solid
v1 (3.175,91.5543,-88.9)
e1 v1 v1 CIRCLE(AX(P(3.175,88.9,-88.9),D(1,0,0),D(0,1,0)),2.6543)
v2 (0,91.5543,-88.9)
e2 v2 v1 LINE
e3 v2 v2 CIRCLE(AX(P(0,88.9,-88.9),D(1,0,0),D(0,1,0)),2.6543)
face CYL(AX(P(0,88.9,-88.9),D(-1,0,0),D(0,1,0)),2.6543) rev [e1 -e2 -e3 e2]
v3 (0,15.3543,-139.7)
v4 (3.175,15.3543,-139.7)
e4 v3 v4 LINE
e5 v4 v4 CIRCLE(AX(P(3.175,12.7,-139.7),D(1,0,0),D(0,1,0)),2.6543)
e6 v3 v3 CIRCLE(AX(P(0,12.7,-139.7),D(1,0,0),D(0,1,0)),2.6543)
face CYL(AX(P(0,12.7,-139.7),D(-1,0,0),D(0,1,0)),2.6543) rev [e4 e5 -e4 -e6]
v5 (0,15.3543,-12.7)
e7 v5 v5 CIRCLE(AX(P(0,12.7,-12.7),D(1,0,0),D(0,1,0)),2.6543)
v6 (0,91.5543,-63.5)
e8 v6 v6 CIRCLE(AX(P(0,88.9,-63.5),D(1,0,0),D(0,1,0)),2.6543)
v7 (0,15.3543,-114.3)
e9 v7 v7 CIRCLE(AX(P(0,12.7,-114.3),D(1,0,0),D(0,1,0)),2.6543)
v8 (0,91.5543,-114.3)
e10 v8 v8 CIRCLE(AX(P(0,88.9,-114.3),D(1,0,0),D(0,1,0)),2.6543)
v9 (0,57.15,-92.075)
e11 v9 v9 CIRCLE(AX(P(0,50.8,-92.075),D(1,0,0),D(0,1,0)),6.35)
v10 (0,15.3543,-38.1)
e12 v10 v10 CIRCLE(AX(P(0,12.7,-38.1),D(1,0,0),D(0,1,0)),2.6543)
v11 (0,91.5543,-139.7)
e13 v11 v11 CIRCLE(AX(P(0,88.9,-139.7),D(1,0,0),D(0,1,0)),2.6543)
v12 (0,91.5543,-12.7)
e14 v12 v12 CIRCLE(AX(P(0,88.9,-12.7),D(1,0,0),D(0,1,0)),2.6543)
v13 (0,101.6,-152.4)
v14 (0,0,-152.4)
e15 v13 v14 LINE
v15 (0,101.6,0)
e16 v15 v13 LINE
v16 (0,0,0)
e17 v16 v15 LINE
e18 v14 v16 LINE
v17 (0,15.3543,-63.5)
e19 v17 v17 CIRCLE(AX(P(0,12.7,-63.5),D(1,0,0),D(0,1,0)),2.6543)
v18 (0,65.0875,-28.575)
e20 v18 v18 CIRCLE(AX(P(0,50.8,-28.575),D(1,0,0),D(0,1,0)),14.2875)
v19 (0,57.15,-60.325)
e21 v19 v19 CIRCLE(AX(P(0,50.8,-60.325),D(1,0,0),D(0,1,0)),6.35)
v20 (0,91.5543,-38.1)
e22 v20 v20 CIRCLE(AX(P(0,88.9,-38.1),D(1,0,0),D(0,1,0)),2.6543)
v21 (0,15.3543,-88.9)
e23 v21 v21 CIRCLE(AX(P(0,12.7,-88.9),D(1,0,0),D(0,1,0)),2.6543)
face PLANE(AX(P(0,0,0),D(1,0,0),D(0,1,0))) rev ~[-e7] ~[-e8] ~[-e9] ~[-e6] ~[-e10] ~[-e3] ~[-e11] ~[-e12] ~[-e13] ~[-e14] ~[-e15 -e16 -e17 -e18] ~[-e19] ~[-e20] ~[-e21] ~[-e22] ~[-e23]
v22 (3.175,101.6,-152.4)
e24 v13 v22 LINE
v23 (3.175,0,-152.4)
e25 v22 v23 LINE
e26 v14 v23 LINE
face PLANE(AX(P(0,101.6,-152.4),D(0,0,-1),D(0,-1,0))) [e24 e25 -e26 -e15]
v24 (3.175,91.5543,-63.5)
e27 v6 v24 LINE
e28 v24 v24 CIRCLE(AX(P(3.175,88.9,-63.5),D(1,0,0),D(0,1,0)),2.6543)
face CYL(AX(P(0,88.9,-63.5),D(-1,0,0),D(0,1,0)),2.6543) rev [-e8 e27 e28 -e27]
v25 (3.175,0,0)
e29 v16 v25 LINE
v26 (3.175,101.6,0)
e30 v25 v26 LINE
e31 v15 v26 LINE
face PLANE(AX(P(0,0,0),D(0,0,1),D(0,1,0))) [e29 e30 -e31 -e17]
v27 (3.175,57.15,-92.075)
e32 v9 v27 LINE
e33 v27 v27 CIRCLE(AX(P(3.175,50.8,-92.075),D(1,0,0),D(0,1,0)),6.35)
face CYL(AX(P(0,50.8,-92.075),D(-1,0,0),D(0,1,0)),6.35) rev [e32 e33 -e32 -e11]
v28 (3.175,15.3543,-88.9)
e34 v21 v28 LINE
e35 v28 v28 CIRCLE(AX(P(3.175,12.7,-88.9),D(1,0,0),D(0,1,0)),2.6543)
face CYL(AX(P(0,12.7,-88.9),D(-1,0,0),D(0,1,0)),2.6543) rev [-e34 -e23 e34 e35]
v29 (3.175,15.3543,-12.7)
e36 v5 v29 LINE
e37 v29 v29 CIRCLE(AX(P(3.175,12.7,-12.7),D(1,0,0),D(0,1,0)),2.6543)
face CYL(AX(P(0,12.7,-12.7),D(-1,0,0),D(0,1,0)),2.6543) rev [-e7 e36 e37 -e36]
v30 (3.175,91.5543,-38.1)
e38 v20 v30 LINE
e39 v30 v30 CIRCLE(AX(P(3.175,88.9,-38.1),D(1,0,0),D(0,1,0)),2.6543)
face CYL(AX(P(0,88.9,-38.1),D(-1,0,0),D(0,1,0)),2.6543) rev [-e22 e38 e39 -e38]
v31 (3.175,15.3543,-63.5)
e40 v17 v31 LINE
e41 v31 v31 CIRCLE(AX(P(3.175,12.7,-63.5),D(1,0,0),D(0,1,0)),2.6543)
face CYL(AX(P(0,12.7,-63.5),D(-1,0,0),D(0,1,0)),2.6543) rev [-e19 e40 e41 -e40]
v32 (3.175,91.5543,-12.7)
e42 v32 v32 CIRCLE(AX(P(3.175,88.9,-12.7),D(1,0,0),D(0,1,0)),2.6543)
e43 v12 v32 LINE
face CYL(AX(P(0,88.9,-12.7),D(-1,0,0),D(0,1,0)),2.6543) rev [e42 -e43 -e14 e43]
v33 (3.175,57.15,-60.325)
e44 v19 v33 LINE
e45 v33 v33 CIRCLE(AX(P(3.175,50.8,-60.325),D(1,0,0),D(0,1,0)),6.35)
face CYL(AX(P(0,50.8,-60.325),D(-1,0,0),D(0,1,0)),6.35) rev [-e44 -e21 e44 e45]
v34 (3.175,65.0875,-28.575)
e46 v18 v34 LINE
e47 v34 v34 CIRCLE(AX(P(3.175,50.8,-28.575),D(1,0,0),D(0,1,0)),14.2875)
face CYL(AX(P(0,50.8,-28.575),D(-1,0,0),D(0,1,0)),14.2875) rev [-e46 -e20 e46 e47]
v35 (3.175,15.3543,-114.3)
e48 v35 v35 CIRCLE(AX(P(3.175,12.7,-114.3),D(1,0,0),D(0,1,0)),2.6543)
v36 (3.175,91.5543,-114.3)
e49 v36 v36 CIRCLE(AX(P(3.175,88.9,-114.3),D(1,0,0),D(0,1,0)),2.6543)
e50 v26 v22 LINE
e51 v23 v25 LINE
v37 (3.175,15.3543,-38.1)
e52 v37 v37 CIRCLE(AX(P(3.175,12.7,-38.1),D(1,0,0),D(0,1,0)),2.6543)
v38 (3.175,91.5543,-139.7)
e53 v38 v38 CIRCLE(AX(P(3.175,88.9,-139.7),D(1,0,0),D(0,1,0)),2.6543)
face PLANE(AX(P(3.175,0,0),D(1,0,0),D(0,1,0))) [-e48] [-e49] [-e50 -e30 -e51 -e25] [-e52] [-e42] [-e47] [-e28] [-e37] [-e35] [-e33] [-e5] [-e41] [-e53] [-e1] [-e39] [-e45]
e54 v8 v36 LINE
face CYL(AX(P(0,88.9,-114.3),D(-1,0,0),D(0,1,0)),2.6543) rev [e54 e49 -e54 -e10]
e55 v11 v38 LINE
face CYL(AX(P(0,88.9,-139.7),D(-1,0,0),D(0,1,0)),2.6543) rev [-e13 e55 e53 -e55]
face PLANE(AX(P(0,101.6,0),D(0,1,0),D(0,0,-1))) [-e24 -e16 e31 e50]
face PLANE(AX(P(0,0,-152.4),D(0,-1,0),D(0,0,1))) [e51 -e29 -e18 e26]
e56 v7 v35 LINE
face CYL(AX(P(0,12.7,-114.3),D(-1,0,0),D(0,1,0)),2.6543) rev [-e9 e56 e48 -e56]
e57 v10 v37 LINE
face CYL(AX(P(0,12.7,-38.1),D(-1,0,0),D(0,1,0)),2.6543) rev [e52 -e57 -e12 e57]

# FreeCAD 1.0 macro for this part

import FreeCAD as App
import Part
import Sketcher
Q = App.Units.Quantity


def add_polygon(sketch, points):
    """Adds a closed chain of lines whose ends are joined by coincident constraints."""
    first, n = sketch.GeometryCount, len(points)
    for a, b in zip(points, points[1:] + points[:1]):
        sketch.addGeometry(Part.LineSegment(App.Vector(*a, 0), App.Vector(*b, 0)), False)
    for i in range(n):
        sketch.addConstraint(Sketcher.Constraint("Coincident", first + i, 2, first + (i + 1) % n, 1))

doc = App.newDocument("Part")
body = doc.addObject("PartDesign::Body", "Body")

sketch1 = body.newObject("Sketcher::SketchObject", "Sketch")
sketch1.AttachmentSupport = (doc.getObject("YZ_Plane"), [""])
sketch1.MapMode = "FlatFace"
add_polygon(sketch1, [(101.6, 0), (0, 0), (0, -152.4), (101.6, -152.4)])
sketch1.addGeometry(Part.Circle(App.Vector(12.7, -139.7, 0), App.Vector(0, 0, 1), 2.6543), False)
sketch1.addGeometry(Part.Circle(App.Vector(12.7, -114.3, 0), App.Vector(0, 0, 1), 2.6543), False)
sketch1.addGeometry(Part.Circle(App.Vector(12.7, -88.9, 0), App.Vector(0, 0, 1), 2.6543), False)
sketch1.addGeometry(Part.Circle(App.Vector(50.8, -92.075, 0), App.Vector(0, 0, 1), 6.35), False)
sketch1.addGeometry(Part.Circle(App.Vector(88.9, -139.7, 0), App.Vector(0, 0, 1), 2.6543), False)
sketch1.addGeometry(Part.Circle(App.Vector(88.9, -114.3, 0), App.Vector(0, 0, 1), 2.6543), False)
sketch1.addGeometry(Part.Circle(App.Vector(88.9, -88.9, 0), App.Vector(0, 0, 1), 2.6543), False)
sketch1.addGeometry(Part.Circle(App.Vector(12.7, -63.5, 0), App.Vector(0, 0, 1), 2.6543), False)
sketch1.addGeometry(Part.Circle(App.Vector(50.8, -60.325, 0), App.Vector(0, 0, 1), 6.35), False)
sketch1.addGeometry(Part.Circle(App.Vector(12.7, -38.1, 0), App.Vector(0, 0, 1), 2.6543), False)
sketch1.addGeometry(Part.Circle(App.Vector(12.7, -12.7, 0), App.Vector(0, 0, 1), 2.6543), False)
sketch1.addGeometry(Part.Circle(App.Vector(50.8, -28.575, 0), App.Vector(0, 0, 1), 14.2875), False)
sketch1.addGeometry(Part.Circle(App.Vector(88.9, -63.5, 0), App.Vector(0, 0, 1), 2.6543), False)
sketch1.addGeometry(Part.Circle(App.Vector(88.9, -38.1, 0), App.Vector(0, 0, 1), 2.6543), False)
sketch1.addGeometry(Part.Circle(App.Vector(88.9, -12.7, 0), App.Vector(0, 0, 1), 2.6543), False)
sketch1.addConstraint([
    Sketcher.Constraint("Horizontal", 0),
    Sketcher.Constraint("Vertical", 1),
    Sketcher.Constraint("Horizontal", 2),
    Sketcher.Constraint("Vertical", 3),
    Sketcher.Constraint("Coincident", 0, 2, -1, 1),
    Sketcher.Constraint("Equal", 4, 5),
    Sketcher.Constraint("Equal", 5, 6),
    Sketcher.Constraint("Equal", 6, 8),
    Sketcher.Constraint("Equal", 8, 9),
    Sketcher.Constraint("Equal", 9, 10),
    Sketcher.Constraint("Equal", 10, 11),
    Sketcher.Constraint("Equal", 7, 12),
    Sketcher.Constraint("Equal", 11, 13),
    Sketcher.Constraint("Equal", 13, 14),
    Sketcher.Constraint("Equal", 14, 16),
    Sketcher.Constraint("Equal", 16, 17),
    Sketcher.Constraint("Equal", 17, 18),
    Sketcher.Constraint("Horizontal", 4, 3, 8, 3),
    Sketcher.Constraint("Horizontal", 5, 3, 9, 3),
    Sketcher.Constraint("Horizontal", 6, 3, 10, 3),
    Sketcher.Constraint("Horizontal", 11, 3, 16, 3),
    Sketcher.Constraint("Horizontal", 13, 3, 17, 3),
    Sketcher.Constraint("Horizontal", 14, 3, 18, 3),
    Sketcher.Constraint("Vertical", 4, 3, 5, 3),
    Sketcher.Constraint("Vertical", 5, 3, 6, 3),
    Sketcher.Constraint("Vertical", 8, 3, 9, 3),
    Sketcher.Constraint("Vertical", 9, 3, 10, 3),
    Sketcher.Constraint("Vertical", 6, 3, 11, 3),
    Sketcher.Constraint("Vertical", 7, 3, 12, 3),
    Sketcher.Constraint("Vertical", 11, 3, 13, 3),
    Sketcher.Constraint("Vertical", 13, 3, 14, 3),
    Sketcher.Constraint("Vertical", 12, 3, 15, 3),
    Sketcher.Constraint("Vertical", 10, 3, 16, 3),
    Sketcher.Constraint("Vertical", 16, 3, 17, 3),
    Sketcher.Constraint("Vertical", 17, 3, 18, 3),
    Sketcher.Constraint("Diameter", 7, Q("0.5 in")),
    Sketcher.Constraint("DistanceX", 0, 2, 0, 1, Q("4 in")),
    Sketcher.Constraint("DistanceY", 1, 2, 1, 1, Q("6 in")),
    Sketcher.Constraint("Diameter", 4, Q("0.209 in")),
    Sketcher.Constraint("Diameter", 15, Q("1.125 in")),
    Sketcher.Constraint("DistanceY", 4, 3, 5, 3, Q("1 in")),
    Sketcher.Constraint("DistanceY", 5, 3, 6, 3, Q("1 in")),
    Sketcher.Constraint("DistanceX", 4, 3, 8, 3, Q("3 in")),
    Sketcher.Constraint("DistanceY", 6, 3, 11, 3, Q("1 in")),
    Sketcher.Constraint("DistanceY", 11, 3, 13, 3, Q("1 in")),
    Sketcher.Constraint("DistanceY", 13, 3, 14, 3, Q("1 in")),
    Sketcher.Constraint("DistanceX", -1, 1, 4, 3, Q("0.5 in")),
    Sketcher.Constraint("DistanceY", 14, 3, -1, 1, Q("0.5 in")),
    Sketcher.Constraint("DistanceY", 7, 3, 12, 3, Q("1.25 in")),
    Sketcher.Constraint("DistanceY", 12, 3, 15, 3, Q("1.25 in")),
    Sketcher.Constraint("DistanceX", -1, 1, 7, 3, Q("2 in")),
    Sketcher.Constraint("DistanceY", 15, 3, -1, 1, Q("1.125 in")),
])
pad1 = body.newObject("PartDesign::Pad", "Pad")
pad1.Profile = sketch1
pad1.Length = Q("0.125 in")

doc.recompute()
